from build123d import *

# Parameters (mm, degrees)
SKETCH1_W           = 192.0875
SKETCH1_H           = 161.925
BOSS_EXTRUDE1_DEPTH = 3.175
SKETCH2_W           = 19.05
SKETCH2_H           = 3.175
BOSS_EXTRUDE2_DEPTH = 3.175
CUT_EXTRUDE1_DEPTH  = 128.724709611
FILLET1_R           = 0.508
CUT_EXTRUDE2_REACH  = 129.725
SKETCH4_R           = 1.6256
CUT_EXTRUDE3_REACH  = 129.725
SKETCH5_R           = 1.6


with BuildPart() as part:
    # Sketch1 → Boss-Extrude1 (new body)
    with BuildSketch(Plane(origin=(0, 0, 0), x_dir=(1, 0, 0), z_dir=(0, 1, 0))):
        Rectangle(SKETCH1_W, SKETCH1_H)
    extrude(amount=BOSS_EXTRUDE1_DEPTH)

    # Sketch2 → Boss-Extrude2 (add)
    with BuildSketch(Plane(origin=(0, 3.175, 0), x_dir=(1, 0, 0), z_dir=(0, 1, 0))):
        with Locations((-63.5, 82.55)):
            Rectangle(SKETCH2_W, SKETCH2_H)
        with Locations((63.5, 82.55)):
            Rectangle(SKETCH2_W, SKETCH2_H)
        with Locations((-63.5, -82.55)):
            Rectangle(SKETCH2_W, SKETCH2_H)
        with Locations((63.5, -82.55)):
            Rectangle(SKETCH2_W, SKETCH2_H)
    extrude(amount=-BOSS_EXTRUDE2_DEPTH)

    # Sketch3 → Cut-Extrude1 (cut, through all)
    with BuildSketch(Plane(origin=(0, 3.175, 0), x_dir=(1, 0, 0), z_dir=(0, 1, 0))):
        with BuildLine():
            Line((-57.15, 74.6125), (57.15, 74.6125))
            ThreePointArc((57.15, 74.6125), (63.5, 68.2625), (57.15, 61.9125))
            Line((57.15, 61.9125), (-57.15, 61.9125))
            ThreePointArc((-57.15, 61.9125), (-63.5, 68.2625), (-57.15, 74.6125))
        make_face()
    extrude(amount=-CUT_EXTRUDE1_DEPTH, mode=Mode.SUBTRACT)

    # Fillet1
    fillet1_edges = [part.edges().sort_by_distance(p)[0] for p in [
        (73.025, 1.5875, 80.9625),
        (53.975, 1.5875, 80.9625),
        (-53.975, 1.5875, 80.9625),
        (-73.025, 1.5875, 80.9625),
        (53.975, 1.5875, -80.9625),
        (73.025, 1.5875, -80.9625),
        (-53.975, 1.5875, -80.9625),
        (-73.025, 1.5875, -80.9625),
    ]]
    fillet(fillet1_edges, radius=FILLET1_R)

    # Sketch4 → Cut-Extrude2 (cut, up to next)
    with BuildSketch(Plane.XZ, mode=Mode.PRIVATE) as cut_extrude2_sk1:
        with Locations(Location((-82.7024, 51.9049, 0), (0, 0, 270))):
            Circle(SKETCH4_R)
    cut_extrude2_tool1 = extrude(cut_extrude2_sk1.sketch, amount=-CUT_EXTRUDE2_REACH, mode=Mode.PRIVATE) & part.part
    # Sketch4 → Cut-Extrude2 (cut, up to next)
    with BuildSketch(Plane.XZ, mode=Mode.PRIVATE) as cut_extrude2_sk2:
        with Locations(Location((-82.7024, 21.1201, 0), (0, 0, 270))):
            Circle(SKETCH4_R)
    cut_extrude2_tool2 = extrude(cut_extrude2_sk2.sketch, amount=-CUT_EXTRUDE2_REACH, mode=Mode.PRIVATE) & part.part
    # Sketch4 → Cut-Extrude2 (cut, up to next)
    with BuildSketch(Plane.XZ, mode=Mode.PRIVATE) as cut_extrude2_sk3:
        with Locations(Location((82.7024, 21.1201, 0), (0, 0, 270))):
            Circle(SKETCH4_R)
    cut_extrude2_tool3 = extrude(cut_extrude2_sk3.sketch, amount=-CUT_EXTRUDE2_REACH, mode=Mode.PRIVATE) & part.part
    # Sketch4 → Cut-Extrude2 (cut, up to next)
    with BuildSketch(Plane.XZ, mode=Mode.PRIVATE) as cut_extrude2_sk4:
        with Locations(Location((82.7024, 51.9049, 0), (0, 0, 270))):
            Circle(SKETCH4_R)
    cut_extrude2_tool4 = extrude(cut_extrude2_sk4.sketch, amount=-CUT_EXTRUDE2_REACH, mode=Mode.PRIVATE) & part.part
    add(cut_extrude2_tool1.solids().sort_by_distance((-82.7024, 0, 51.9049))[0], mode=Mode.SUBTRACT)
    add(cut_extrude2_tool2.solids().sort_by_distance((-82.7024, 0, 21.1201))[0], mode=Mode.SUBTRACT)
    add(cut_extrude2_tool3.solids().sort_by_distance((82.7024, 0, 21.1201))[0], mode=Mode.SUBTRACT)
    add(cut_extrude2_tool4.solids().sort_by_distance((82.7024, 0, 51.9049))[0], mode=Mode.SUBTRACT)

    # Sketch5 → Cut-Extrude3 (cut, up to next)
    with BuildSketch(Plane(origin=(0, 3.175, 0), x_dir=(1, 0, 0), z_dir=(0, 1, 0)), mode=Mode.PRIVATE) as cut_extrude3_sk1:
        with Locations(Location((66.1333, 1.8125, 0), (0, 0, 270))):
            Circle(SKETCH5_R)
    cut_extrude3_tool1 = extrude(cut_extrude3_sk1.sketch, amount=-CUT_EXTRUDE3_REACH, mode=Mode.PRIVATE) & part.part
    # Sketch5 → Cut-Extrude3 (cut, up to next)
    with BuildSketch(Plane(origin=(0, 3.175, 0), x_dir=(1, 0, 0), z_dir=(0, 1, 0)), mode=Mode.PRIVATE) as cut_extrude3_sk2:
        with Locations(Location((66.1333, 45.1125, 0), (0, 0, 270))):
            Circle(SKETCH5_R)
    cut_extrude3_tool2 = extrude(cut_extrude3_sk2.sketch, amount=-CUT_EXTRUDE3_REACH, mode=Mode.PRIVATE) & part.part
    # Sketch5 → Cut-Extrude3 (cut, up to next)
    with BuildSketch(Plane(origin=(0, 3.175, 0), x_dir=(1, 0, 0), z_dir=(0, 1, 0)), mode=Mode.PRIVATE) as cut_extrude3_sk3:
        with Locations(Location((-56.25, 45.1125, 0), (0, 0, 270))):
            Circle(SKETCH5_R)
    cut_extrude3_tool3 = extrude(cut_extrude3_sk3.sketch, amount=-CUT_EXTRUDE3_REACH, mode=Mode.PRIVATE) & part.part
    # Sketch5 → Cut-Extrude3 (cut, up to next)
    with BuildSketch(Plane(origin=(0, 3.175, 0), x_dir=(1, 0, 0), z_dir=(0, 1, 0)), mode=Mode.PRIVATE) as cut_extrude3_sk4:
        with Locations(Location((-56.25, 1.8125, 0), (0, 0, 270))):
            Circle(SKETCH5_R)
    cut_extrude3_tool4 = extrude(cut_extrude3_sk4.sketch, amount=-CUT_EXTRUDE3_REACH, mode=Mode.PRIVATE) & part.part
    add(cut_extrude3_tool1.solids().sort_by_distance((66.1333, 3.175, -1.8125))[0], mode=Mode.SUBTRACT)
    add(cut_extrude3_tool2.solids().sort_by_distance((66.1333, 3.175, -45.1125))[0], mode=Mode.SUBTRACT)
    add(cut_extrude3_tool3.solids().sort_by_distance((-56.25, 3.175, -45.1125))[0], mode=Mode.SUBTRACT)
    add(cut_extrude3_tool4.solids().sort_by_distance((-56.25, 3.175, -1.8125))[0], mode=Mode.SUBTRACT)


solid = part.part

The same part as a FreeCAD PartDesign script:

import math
import FreeCAD as App
import Part
import Sketcher
Q = App.Units.Quantity


def edges_at(feature, points):
    """Names of the edges that pass closest to the given points."""
    edges = feature.Shape.Edges
    near = lambda p: min(range(len(edges)), key=lambda i: edges[i].distToShape(Part.Vertex(*p))[0])
    return sorted({f"Edge{near(p) + 1}" for p in points})

doc = App.newDocument("Part")
params = doc.addObject("Spreadsheet::Sheet", "Params")
for row, (alias, value) in enumerate([
    ("sketch1_width", "7.5625 in"),
    ("sketch1_height", "6.375 in"),
    ("pad1_length", "0.125 in"),
    ("sketch2_width", "0.75 in"),
    ("sketch2_height", "0.125 in"),
    ("pad2_length", "0.125 in"),
    ("sketch3_radius", "0.25 in"),
    ("sketch3_width", "4.5 in"),
    ("fillet_radius", "0.02 in"),
    ("sketch4_diameter", "0.128 in"),
    ("sketch5_diameter", "0.128 in"),
    ("sketch6_diameter", "0.128 in"),
    ("sketch7_diameter", "0.128 in"),
], start=1):
    params.set(f"A{row}", alias)
    params.set(f"B{row}", "=" + value)
    params.setAlias(f"B{row}", alias)

body = doc.addObject("PartDesign::Body", "Body")

# Sketch on XZ plane
sketch1 = doc.addObject("Sketcher::SketchObject", "Sketch")
body.addObject(sketch1)
sketch1.AttachmentSupport = (doc.XZ_Plane, [""])
sketch1.MapMode = "FlatFace"
sketch1.addGeometry([
    Part.LineSegment(App.Vector(-96, -81, 0), App.Vector(-96, 81, 0)),
    Part.LineSegment(App.Vector(-96, 81, 0), App.Vector(96, 81, 0)),
    Part.LineSegment(App.Vector(96, 81, 0), App.Vector(96, -81, 0)),
    Part.LineSegment(App.Vector(96, -81, 0), App.Vector(-96, -81, 0)),
], False)
sketch1.addConstraint([
    Sketcher.Constraint("Coincident", 0, 2, 1, 1),
    Sketcher.Constraint("Coincident", 1, 2, 2, 1),
    Sketcher.Constraint("Coincident", 2, 2, 3, 1),
    Sketcher.Constraint("Coincident", 3, 2, 0, 1),
    Sketcher.Constraint("Vertical", 0),
    Sketcher.Constraint("Horizontal", 1),
    Sketcher.Constraint("Vertical", 2),
    Sketcher.Constraint("Horizontal", 3),
    Sketcher.Constraint("Symmetric", 0, 2, 2, 2, -1, 1),
    Sketcher.Constraint("DistanceX", 1, 1, 1, 2, Q("7.5625 in")),
    Sketcher.Constraint("DistanceY", 0, 1, 0, 2, Q("6.375 in")),
])
sketch1.setExpression("Constraints[9]", "Params.sketch1_width")
sketch1.setExpression("Constraints[10]", "Params.sketch1_height")
pad1 = doc.addObject("PartDesign::Pad", "Pad")
body.addObject(pad1)
pad1.Profile = sketch1
pad1.setExpression("Length", "Params.pad1_length")
pad1.Reversed = True

# Sketch on XZ plane
sketch2 = doc.addObject("Sketcher::SketchObject", "Sketch001")
body.addObject(sketch2)
sketch2.AttachmentSupport = (doc.XZ_Plane, [""])
sketch2.MapMode = "FlatFace"
sketch2.AttachmentOffset = App.Placement(App.Vector(0, 0, -0.125 * 25.4), App.Rotation())
sketch2.addGeometry([
    Part.LineSegment(App.Vector(-73, -84.1, 0), App.Vector(-73, -81, 0)),  # 0
    Part.LineSegment(App.Vector(-73, -81, 0), App.Vector(-54, -81, 0)),  # 1
    Part.LineSegment(App.Vector(-54, -81, 0), App.Vector(-54, -84.1, 0)),  # 2
    Part.LineSegment(App.Vector(-54, -84.1, 0), App.Vector(-73, -84.1, 0)),  # 3
    Part.LineSegment(App.Vector(54, -84.1, 0), App.Vector(54, -81, 0)),  # 4
    Part.LineSegment(App.Vector(54, -81, 0), App.Vector(73, -81, 0)),  # 5
    Part.LineSegment(App.Vector(73, -81, 0), App.Vector(73, -84.1, 0)),  # 6
    Part.LineSegment(App.Vector(73, -84.1, 0), App.Vector(54, -84.1, 0)),  # 7
    Part.LineSegment(App.Vector(-73, 81, 0), App.Vector(-73, 84.1, 0)),  # 8
    Part.LineSegment(App.Vector(-73, 84.1, 0), App.Vector(-54, 84.1, 0)),  # 9
    Part.LineSegment(App.Vector(-54, 84.1, 0), App.Vector(-54, 81, 0)),  # 10
    Part.LineSegment(App.Vector(-54, 81, 0), App.Vector(-73, 81, 0)),  # 11
    Part.LineSegment(App.Vector(54, 81, 0), App.Vector(54, 84.1, 0)),  # 12
    Part.LineSegment(App.Vector(54, 84.1, 0), App.Vector(73, 84.1, 0)),  # 13
    Part.LineSegment(App.Vector(73, 84.1, 0), App.Vector(73, 81, 0)),  # 14
    Part.LineSegment(App.Vector(73, 81, 0), App.Vector(54, 81, 0)),  # 15
], False)
sketch2.addConstraint([
    Sketcher.Constraint("Coincident", 0, 2, 1, 1),
    Sketcher.Constraint("Coincident", 1, 2, 2, 1),
    Sketcher.Constraint("Coincident", 2, 2, 3, 1),
    Sketcher.Constraint("Coincident", 3, 2, 0, 1),
    Sketcher.Constraint("Coincident", 4, 2, 5, 1),
    Sketcher.Constraint("Coincident", 5, 2, 6, 1),
    Sketcher.Constraint("Coincident", 6, 2, 7, 1),
    Sketcher.Constraint("Coincident", 7, 2, 4, 1),
    Sketcher.Constraint("Coincident", 8, 2, 9, 1),
    Sketcher.Constraint("Coincident", 9, 2, 10, 1),
    Sketcher.Constraint("Coincident", 10, 2, 11, 1),
    Sketcher.Constraint("Coincident", 11, 2, 8, 1),
    Sketcher.Constraint("Coincident", 12, 2, 13, 1),
    Sketcher.Constraint("Coincident", 13, 2, 14, 1),
    Sketcher.Constraint("Coincident", 14, 2, 15, 1),
    Sketcher.Constraint("Coincident", 15, 2, 12, 1),
    Sketcher.Constraint("Vertical", 0),
    Sketcher.Constraint("Horizontal", 1),
    Sketcher.Constraint("Vertical", 2),
    Sketcher.Constraint("Horizontal", 3),
    Sketcher.Constraint("Vertical", 4),
    Sketcher.Constraint("Horizontal", 5),
    Sketcher.Constraint("Vertical", 6),
    Sketcher.Constraint("Horizontal", 7),
    Sketcher.Constraint("Vertical", 8),
    Sketcher.Constraint("Horizontal", 9),
    Sketcher.Constraint("Vertical", 10),
    Sketcher.Constraint("Horizontal", 11),
    Sketcher.Constraint("Vertical", 12),
    Sketcher.Constraint("Horizontal", 13),
    Sketcher.Constraint("Vertical", 14),
    Sketcher.Constraint("Horizontal", 15),
    Sketcher.Constraint("Symmetric", 6, 2, 8, 2, -1, 1),
    Sketcher.Constraint("Symmetric", 4, 2, 10, 2, -1, 1),
    Sketcher.Constraint("Symmetric", 2, 2, 12, 2, -1, 1),
    Sketcher.Constraint("Symmetric", 0, 2, 14, 2, -1, 1),
    Sketcher.Constraint("Symmetric", 1, 2, 4, 2, -2),
    Sketcher.Constraint("Symmetric", 3, 2, 6, 2, -2),
    Sketcher.Constraint("DistanceX", 0, 2, 4, 2, Q("5 in")),
    Sketcher.Constraint("DistanceX", 1, 1, 1, 2, Q("0.75 in")),
    Sketcher.Constraint("DistanceY", 0, 2, 8, 2, Q("6.5 in")),
    Sketcher.Constraint("DistanceY", 0, 1, 0, 2, Q("0.125 in")),
])
sketch2.setExpression("Constraints[39]", "Params.sketch2_width")
sketch2.setExpression("Constraints[41]", "Params.sketch2_height")
pad2 = doc.addObject("PartDesign::Pad", "Pad001")
body.addObject(pad2)
pad2.Profile = sketch2
pad2.setExpression("Length", "Params.pad2_length")

# Sketch on XZ plane
sketch3 = doc.addObject("Sketcher::SketchObject", "Sketch002")
body.addObject(sketch3)
sketch3.AttachmentSupport = (doc.XZ_Plane, [""])
sketch3.MapMode = "FlatFace"
sketch3.AttachmentOffset = App.Placement(App.Vector(0, 0, -0.125 * 25.4), App.Rotation())
sketch3.addGeometry([
    Part.LineSegment(App.Vector(57, -75, 0), App.Vector(-57, -75, 0)),
    Part.ArcOfCircle(Part.Circle(App.Vector(-57, -68, 0), App.Vector(0, 0, 1), 6), math.radians(90), math.radians(270)),
    Part.LineSegment(App.Vector(-57, -62, 0), App.Vector(57, -62, 0)),
    Part.ArcOfCircle(Part.Circle(App.Vector(57, -68, 0), App.Vector(0, 0, 1), 6), math.radians(-90), math.radians(90)),
], False)
sketch3.addConstraint([
    Sketcher.Constraint("Tangent", 0, 2, 1, 2),
    Sketcher.Constraint("Tangent", 1, 1, 2, 1),
    Sketcher.Constraint("Tangent", 2, 2, 3, 2),
    Sketcher.Constraint("Tangent", 3, 1, 0, 1),
    Sketcher.Constraint("Horizontal", 0),
    Sketcher.Constraint("Horizontal", 2),
    Sketcher.Constraint("Radius", 1, Q("0.25 in")),
    Sketcher.Constraint("DistanceX", 0, 2, 0, 1, Q("4.5 in")),
    Sketcher.Constraint("DistanceX", 1, 3, -1, 1, Q("2.25 in")),
    Sketcher.Constraint("DistanceY", 1, 3, -1, 1, Q("2.6875 in")),
])
sketch3.setExpression("Constraints[6]", "Params.sketch3_radius")
sketch3.setExpression("Constraints[7]", "Params.sketch3_width")
pocket1 = doc.addObject("PartDesign::Pocket", "Pocket")
body.addObject(pocket1)
pocket1.Profile = sketch3
pocket1.Type = "ThroughAll"
pocket1.Reversed = True
doc.recompute()

fillet = doc.addObject("PartDesign::Fillet", "Fillet")
body.addObject(fillet)
fillet.Base = (pocket1, edges_at(pocket1, [
    (73.025, 1.587, 80.963),
    (53.975, 1.587, 80.963),
    (-53.975, 1.587, 80.963),
    (-73.025, 1.587, 80.963),
    (53.975, 1.587, -80.963),
    (73.025, 1.587, -80.963),
    (-53.975, 1.587, -80.963),
    (-73.025, 1.587, -80.963),
]))
fillet.setExpression("Radius", "Params.fillet_radius")

# Sketch on XZ plane
sketch4 = doc.addObject("Sketcher::SketchObject", "Sketch003")
body.addObject(sketch4)
sketch4.AttachmentSupport = (doc.XZ_Plane, [""])
sketch4.MapMode = "FlatFace"
sketch4.addGeometry(Part.Circle(App.Vector(-82.7, 51.9, 0), App.Vector(0, 0, 1), 1.6), False)
sketch4.addConstraint([
    Sketcher.Constraint("Diameter", 0, Q("0.128 in")),
    Sketcher.Constraint("DistanceX", 0, 3, -1, 1, Q("3.256 in")),
    Sketcher.Constraint("DistanceY", -1, 1, 0, 3, Q("2.0435 in")),
])
sketch4.setExpression("Constraints[0]", "Params.sketch4_diameter")
pocket2 = doc.addObject("PartDesign::Pocket", "Pocket001")
body.addObject(pocket2)
pocket2.Profile = sketch4
pocket2.Type = "UpToFirst"

# Sketch on XZ plane
sketch5 = doc.addObject("Sketcher::SketchObject", "Sketch004")
body.addObject(sketch5)
sketch5.AttachmentSupport = (doc.XZ_Plane, [""])
sketch5.MapMode = "FlatFace"
sketch5.addGeometry(Part.Circle(App.Vector(-82.7, 21.1, 0), App.Vector(0, 0, 1), 1.6), False)
sketch5.addConstraint([
    Sketcher.Constraint("Diameter", 0, Q("0.128 in")),
    Sketcher.Constraint("DistanceX", 0, 3, -1, 1, Q("3.256 in")),
    Sketcher.Constraint("DistanceY", -1, 1, 0, 3, Q("0.8315 in")),
])
sketch5.setExpression("Constraints[0]", "Params.sketch5_diameter")
pocket3 = doc.addObject("PartDesign::Pocket", "Pocket002")
body.addObject(pocket3)
pocket3.Profile = sketch5
pocket3.Type = "UpToFirst"

# Sketch on XZ plane
sketch6 = doc.addObject("Sketcher::SketchObject", "Sketch005")
body.addObject(sketch6)
sketch6.AttachmentSupport = (doc.XZ_Plane, [""])
sketch6.MapMode = "FlatFace"
sketch6.addGeometry(Part.Circle(App.Vector(82.7, 21.1, 0), App.Vector(0, 0, 1), 1.6), False)
sketch6.addConstraint([
    Sketcher.Constraint("Diameter", 0, Q("0.128 in")),
    Sketcher.Constraint("DistanceX", -1, 1, 0, 3, Q("3.256 in")),
    Sketcher.Constraint("DistanceY", -1, 1, 0, 3, Q("0.8315 in")),
])
sketch6.setExpression("Constraints[0]", "Params.sketch6_diameter")
pocket4 = doc.addObject("PartDesign::Pocket", "Pocket003")
body.addObject(pocket4)
pocket4.Profile = sketch6
pocket4.Type = "UpToFirst"

# Sketch on XZ plane
sketch7 = doc.addObject("Sketcher::SketchObject", "Sketch006")
body.addObject(sketch7)
sketch7.AttachmentSupport = (doc.XZ_Plane, [""])
sketch7.MapMode = "FlatFace"
sketch7.addGeometry(Part.Circle(App.Vector(82.7, 51.9, 0), App.Vector(0, 0, 1), 1.6), False)
sketch7.addConstraint([
    Sketcher.Constraint("Diameter", 0, Q("0.128 in")),
    Sketcher.Constraint("DistanceX", -1, 1, 0, 3, Q("3.256 in")),
    Sketcher.Constraint("DistanceY", -1, 1, 0, 3, Q("2.0435 in")),
])
sketch7.setExpression("Constraints[0]", "Params.sketch7_diameter")
pocket5 = doc.addObject("PartDesign::Pocket", "Pocket004")
body.addObject(pocket5)
pocket5.Profile = sketch7
pocket5.Type = "UpToFirst"

# Sketch on XZ plane
sketch8 = doc.addObject("Sketcher::SketchObject", "Sketch007")
body.addObject(sketch8)
sketch8.AttachmentSupport = (doc.XZ_Plane, [""])
sketch8.MapMode = "FlatFace"
sketch8.AttachmentOffset = App.Placement(App.Vector(0, 0, -0.125 * 25.4), App.Rotation())
sketch8.addGeometry(Part.Circle(App.Vector(66.1, -1.8, 0), App.Vector(0, 0, 1), 1.6), False)
sketch8.addConstraint([
    Sketcher.Constraint("Diameter", 0, 3.2),
    Sketcher.Constraint("DistanceX", -1, 1, 0, 3, 66.1333),
    Sketcher.Constraint("DistanceY", 0, 3, -1, 1, 1.8125),
])
pocket6 = doc.addObject("PartDesign::Pocket", "Pocket005")
body.addObject(pocket6)
pocket6.Profile = sketch8
pocket6.Type = "UpToFirst"
pocket6.Reversed = True

# Sketch on XZ plane
sketch9 = doc.addObject("Sketcher::SketchObject", "Sketch008")
body.addObject(sketch9)
sketch9.AttachmentSupport = (doc.XZ_Plane, [""])
sketch9.MapMode = "FlatFace"
sketch9.AttachmentOffset = App.Placement(App.Vector(0, 0, -0.125 * 25.4), App.Rotation())
sketch9.addGeometry(Part.Circle(App.Vector(66.1, -45.1, 0), App.Vector(0, 0, 1), 1.6), False)
sketch9.addConstraint([
    Sketcher.Constraint("Diameter", 0, 3.2),
    Sketcher.Constraint("DistanceX", -1, 1, 0, 3, 66.1333),
    Sketcher.Constraint("DistanceY", 0, 3, -1, 1, 45.1125),
])
pocket7 = doc.addObject("PartDesign::Pocket", "Pocket006")
body.addObject(pocket7)
pocket7.Profile = sketch9
pocket7.Type = "UpToFirst"
pocket7.Reversed = True

# Sketch on XZ plane
sketch10 = doc.addObject("Sketcher::SketchObject", "Sketch009")
body.addObject(sketch10)
sketch10.AttachmentSupport = (doc.XZ_Plane, [""])
sketch10.MapMode = "FlatFace"
sketch10.AttachmentOffset = App.Placement(App.Vector(0, 0, -0.125 * 25.4), App.Rotation())
sketch10.addGeometry(Part.Circle(App.Vector(-56.2, -45.1, 0), App.Vector(0, 0, 1), 1.6), False)
sketch10.addConstraint([
    Sketcher.Constraint("Diameter", 0, 3.2),
    Sketcher.Constraint("DistanceX", 0, 3, -1, 1, 56.25),
    Sketcher.Constraint("DistanceY", 0, 3, -1, 1, 45.1125),
])
pocket8 = doc.addObject("PartDesign::Pocket", "Pocket007")
body.addObject(pocket8)
pocket8.Profile = sketch10
pocket8.Type = "UpToFirst"
pocket8.Reversed = True

# Sketch on XZ plane
sketch11 = doc.addObject("Sketcher::SketchObject", "Sketch010")
body.addObject(sketch11)
sketch11.AttachmentSupport = (doc.XZ_Plane, [""])
sketch11.MapMode = "FlatFace"
sketch11.AttachmentOffset = App.Placement(App.Vector(0, 0, -0.125 * 25.4), App.Rotation())
sketch11.addGeometry(Part.Circle(App.Vector(-56.2, -1.8, 0), App.Vector(0, 0, 1), 1.6), False)
sketch11.addConstraint([
    Sketcher.Constraint("Diameter", 0, 3.2),
    Sketcher.Constraint("DistanceX", 0, 3, -1, 1, 56.25),
    Sketcher.Constraint("DistanceY", 0, 3, -1, 1, 1.8125),
])
pocket9 = doc.addObject("PartDesign::Pocket", "Pocket008")
body.addObject(pocket9)
pocket9.Profile = sketch11
pocket9.Type = "UpToFirst"
pocket9.Reversed = True

doc.recompute()
